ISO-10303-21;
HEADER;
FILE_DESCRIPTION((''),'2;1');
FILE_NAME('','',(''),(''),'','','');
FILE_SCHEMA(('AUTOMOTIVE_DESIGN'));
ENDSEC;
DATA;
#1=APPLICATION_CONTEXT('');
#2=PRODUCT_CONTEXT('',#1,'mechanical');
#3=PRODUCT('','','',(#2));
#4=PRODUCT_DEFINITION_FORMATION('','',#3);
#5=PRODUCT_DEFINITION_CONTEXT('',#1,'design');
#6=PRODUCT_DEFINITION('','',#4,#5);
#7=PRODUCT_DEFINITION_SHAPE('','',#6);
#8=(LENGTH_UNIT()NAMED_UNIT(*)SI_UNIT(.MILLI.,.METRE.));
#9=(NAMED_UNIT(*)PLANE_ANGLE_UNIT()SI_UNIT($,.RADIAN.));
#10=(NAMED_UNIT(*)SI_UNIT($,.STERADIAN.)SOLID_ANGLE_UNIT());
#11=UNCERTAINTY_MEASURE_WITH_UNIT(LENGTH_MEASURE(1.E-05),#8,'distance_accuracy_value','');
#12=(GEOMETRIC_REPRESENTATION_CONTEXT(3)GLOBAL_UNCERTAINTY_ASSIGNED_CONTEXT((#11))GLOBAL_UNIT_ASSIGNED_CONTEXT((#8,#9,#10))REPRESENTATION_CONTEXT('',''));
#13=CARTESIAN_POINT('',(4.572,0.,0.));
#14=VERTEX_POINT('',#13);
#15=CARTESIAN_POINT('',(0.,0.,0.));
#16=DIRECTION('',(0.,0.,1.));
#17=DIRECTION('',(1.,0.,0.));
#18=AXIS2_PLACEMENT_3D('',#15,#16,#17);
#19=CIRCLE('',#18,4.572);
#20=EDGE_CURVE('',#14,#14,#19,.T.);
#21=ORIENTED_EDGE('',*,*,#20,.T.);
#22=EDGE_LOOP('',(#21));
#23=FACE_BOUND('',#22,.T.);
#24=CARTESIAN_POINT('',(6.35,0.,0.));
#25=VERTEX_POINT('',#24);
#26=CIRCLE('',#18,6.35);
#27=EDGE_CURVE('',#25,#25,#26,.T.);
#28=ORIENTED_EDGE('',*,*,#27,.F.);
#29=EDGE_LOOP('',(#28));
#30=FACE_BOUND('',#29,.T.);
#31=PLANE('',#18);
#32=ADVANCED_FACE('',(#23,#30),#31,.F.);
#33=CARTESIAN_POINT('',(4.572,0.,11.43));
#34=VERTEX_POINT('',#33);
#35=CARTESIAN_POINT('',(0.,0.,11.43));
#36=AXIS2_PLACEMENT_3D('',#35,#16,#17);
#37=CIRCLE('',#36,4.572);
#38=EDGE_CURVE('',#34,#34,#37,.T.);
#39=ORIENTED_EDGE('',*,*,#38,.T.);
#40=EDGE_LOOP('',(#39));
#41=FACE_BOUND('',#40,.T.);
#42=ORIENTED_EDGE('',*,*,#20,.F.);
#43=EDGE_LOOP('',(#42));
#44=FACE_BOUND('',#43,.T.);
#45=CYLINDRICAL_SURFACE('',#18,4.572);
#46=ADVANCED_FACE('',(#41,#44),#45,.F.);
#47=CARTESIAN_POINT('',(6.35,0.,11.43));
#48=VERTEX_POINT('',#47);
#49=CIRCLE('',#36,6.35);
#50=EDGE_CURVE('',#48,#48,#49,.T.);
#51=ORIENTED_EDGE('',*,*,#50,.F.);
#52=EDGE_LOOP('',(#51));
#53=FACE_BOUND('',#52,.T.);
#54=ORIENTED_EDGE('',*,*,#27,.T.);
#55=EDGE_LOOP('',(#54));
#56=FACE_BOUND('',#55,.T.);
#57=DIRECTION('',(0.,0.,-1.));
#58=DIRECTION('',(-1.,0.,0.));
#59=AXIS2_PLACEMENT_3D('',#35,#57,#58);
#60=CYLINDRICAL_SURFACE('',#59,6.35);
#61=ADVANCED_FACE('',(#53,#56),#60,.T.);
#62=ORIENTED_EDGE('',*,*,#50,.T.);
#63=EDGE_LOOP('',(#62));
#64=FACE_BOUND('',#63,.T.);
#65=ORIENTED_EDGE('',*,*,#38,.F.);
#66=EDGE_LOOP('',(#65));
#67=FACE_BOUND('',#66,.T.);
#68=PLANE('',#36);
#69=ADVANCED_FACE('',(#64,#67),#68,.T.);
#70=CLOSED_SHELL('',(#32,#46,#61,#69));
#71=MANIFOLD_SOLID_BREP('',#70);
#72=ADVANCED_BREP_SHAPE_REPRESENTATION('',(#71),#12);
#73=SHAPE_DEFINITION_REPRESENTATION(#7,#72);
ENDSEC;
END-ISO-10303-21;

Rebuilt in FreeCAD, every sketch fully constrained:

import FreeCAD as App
import Part
import Sketcher

V = App.Vector
Q = App.Units.Quantity

doc = App.newDocument("Part")
body = doc.addObject("PartDesign::Body", "Body")

# Sketch on XY plane
sketch1 = body.newObject("Sketcher::SketchObject", "Sketch")
sketch1.AttachmentSupport = (doc.getObject("XY_Plane"), [""])
sketch1.MapMode = "FlatFace"
sketch1.addGeometry(Part.Circle(V(0, 0, 0), V(0, 0, 1), 6.35), False)
sketch1.addConstraint(Sketcher.Constraint("Coincident", 0, 3, -1, 1))
sketch1.addConstraint(Sketcher.Constraint("Diameter", 0, Q("0.5 in")))
pad1 = body.newObject("PartDesign::Pad", "Pad")
pad1.Profile = sketch1
pad1.Length = Q("0.45 in")

# Sketch on XY plane
sketch2 = body.newObject("Sketcher::SketchObject", "Sketch001")
sketch2.AttachmentSupport = (doc.getObject("XY_Plane"), [""])
sketch2.MapMode = "FlatFace"
sketch2.AttachmentOffset = App.Placement(V(0, 0, 0.45 * 25.4), App.Rotation())
sketch2.addGeometry(Part.Circle(V(0, 0, 0), V(0, 0, 1), 4.572), False)
sketch2.addConstraint(Sketcher.Constraint("Coincident", 0, 3, -1, 1))
sketch2.addConstraint(Sketcher.Constraint("Diameter", 0, Q("0.36 in")))
pocket1 = body.newObject("PartDesign::Pocket", "Pocket")
pocket1.Profile = sketch2
pocket1.Type = "ThroughAll"

doc.recompute()
